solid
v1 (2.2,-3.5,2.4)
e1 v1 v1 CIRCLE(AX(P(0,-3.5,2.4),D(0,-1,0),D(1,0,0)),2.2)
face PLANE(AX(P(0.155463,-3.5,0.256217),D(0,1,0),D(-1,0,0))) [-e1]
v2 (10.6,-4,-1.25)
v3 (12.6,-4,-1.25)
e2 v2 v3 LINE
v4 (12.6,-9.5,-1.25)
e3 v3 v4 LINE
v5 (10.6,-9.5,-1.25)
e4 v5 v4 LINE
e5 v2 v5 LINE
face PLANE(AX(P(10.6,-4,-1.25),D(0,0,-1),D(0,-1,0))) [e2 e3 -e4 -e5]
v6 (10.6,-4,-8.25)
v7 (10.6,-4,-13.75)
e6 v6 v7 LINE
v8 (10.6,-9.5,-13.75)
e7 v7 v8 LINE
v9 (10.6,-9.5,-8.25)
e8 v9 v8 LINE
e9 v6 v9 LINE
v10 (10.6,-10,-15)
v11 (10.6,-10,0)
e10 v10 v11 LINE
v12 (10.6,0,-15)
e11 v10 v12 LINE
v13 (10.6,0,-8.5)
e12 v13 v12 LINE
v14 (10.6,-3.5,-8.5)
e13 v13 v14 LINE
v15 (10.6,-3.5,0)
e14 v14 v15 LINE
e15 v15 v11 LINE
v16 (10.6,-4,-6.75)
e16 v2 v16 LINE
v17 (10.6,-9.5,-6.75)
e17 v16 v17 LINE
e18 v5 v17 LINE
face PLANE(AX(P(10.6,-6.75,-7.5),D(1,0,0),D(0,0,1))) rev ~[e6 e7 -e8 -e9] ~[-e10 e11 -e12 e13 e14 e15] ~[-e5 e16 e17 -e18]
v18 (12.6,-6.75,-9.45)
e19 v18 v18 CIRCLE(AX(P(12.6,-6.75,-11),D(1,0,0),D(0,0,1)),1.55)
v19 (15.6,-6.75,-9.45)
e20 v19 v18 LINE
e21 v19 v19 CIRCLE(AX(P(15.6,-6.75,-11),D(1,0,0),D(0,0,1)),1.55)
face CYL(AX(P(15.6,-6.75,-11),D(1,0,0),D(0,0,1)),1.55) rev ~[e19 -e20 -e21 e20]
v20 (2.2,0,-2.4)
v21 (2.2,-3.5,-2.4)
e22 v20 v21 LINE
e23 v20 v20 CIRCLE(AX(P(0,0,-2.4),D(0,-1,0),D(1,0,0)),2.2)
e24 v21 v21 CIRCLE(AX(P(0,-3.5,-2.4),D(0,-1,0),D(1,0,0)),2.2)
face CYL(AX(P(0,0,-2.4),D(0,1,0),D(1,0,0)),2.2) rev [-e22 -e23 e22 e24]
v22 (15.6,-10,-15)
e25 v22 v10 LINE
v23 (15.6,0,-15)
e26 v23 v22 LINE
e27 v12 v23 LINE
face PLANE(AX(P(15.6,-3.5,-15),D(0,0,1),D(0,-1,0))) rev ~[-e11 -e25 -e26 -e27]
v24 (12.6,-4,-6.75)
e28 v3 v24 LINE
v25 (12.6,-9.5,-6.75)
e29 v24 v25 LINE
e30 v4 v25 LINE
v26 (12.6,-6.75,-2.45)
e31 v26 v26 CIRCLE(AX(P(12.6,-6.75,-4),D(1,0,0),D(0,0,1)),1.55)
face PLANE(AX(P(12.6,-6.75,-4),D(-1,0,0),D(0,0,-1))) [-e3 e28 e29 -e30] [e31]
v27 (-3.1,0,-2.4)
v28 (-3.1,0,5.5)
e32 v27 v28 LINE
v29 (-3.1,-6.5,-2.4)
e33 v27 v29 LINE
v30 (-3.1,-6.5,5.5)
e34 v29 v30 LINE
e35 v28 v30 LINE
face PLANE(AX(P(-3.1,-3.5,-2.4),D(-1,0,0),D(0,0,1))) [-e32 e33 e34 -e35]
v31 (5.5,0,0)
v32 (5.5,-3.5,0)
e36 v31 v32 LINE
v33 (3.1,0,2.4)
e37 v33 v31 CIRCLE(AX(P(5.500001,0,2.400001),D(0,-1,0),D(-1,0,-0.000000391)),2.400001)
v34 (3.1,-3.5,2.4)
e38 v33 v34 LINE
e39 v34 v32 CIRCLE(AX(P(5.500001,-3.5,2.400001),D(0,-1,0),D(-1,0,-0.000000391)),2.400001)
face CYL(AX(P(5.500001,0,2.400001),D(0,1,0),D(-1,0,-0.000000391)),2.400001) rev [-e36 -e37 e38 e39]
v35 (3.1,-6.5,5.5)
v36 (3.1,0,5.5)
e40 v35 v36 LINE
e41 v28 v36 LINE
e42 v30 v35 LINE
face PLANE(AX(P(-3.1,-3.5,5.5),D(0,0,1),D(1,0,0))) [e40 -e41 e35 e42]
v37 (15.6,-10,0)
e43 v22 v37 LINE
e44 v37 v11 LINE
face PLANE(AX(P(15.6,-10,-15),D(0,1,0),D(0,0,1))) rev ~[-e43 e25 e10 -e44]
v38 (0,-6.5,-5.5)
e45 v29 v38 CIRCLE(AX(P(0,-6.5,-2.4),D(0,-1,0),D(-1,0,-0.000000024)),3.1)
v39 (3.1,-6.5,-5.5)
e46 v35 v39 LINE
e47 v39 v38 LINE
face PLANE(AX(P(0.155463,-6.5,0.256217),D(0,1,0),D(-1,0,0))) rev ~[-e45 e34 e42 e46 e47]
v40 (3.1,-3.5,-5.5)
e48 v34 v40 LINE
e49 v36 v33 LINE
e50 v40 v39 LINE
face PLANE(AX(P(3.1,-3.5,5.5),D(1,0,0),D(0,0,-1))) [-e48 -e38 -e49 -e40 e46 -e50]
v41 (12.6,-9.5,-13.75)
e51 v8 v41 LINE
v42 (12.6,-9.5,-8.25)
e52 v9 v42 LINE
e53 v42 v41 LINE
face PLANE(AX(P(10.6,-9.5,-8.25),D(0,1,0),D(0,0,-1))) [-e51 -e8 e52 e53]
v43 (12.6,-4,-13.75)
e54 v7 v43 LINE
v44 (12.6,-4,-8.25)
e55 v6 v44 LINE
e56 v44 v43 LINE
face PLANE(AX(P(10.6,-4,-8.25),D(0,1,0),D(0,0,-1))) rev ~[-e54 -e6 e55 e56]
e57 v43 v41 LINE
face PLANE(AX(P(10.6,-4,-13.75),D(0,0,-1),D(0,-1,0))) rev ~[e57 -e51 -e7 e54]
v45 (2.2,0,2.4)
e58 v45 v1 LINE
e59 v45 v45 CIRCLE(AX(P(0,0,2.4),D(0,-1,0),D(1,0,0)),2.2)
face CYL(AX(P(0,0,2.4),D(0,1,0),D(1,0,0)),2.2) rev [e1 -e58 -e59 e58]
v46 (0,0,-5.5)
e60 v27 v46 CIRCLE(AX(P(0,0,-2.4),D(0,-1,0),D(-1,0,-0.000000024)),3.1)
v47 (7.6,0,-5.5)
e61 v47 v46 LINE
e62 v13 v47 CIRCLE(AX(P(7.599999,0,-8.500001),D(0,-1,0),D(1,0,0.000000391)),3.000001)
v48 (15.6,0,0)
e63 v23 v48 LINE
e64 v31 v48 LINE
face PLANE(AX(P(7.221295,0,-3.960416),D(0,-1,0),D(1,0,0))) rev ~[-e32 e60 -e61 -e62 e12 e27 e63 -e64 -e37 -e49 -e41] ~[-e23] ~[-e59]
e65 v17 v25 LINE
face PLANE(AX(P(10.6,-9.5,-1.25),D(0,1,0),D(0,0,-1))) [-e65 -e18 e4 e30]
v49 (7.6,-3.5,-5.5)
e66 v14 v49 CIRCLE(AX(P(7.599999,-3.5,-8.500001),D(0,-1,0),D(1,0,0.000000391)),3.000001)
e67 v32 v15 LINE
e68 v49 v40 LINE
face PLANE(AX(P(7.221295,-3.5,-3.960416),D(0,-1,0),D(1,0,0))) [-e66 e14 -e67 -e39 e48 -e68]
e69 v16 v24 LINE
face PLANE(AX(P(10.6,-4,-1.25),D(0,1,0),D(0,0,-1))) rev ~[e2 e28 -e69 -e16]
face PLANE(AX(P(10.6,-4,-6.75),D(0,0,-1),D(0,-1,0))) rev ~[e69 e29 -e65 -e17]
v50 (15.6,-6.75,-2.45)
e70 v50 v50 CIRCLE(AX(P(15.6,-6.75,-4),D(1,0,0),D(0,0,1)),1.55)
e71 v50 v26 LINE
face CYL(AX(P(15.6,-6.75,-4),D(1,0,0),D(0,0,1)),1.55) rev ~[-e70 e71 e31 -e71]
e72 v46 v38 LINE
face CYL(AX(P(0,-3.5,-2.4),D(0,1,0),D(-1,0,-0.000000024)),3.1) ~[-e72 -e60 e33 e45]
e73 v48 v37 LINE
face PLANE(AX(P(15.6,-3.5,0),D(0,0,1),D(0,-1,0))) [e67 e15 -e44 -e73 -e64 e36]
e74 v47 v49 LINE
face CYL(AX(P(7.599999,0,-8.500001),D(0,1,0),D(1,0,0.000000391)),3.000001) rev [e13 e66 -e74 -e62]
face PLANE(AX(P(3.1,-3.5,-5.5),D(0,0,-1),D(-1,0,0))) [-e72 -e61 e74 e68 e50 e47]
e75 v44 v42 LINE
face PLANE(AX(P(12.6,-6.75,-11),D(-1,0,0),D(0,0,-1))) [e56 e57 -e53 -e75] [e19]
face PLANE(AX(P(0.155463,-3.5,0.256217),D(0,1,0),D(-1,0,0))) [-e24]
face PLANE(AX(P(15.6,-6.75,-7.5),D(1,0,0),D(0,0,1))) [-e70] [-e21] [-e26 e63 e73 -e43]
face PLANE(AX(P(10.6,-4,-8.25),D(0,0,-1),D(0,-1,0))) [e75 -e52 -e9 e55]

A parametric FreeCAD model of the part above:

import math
import FreeCAD as App
import Part
import Sketcher
from FreeCAD import Vector

doc = App.newDocument("Part")
body = doc.addObject("PartDesign::Body", "Body")

# Sketch on XZ plane
sketch1 = body.newObject("Sketcher::SketchObject", "Sketch")
sketch1.AttachmentSupport = (doc.getObject("XZ_Plane"), [""])
sketch1.MapMode = "FlatFace"
sketch1.addGeometry([
    Part.LineSegment(Vector(10.6, -8.5, 0), Vector(10.6, -15, 0)),  # 0
    Part.LineSegment(Vector(10.6, -15, 0), Vector(15.6, -15, 0)),  # 1
    Part.LineSegment(Vector(15.6, -15, 0), Vector(15.6, 0, 0)),  # 2
    Part.LineSegment(Vector(15.6, 0, 0), Vector(5.5, 0, 0)),  # 3
    Part.ArcOfCircle(Part.Circle(Vector(5.500001, 2.400001, 0), Vector(0, 0, 1), 2.400001), math.radians(-179.999978), math.radians(-90.000022)),  # 4
    Part.LineSegment(Vector(3.1, 2.4, 0), Vector(3.1, 5.5, 0)),  # 5
    Part.LineSegment(Vector(3.1, 5.5, 0), Vector(-3.1, 5.5, 0)),  # 6
    Part.LineSegment(Vector(-3.1, 5.5, 0), Vector(-3.1, -2.4, 0)),  # 7
    Part.ArcOfCircle(Part.Circle(Vector(0, -2.4, 0), Vector(0, 0, 1), 3.1), math.radians(-179.999999), math.radians(-90.000001)),  # 8
    Part.LineSegment(Vector(0, -5.5, 0), Vector(7.6, -5.5, 0)),  # 9
    Part.ArcOfCircle(Part.Circle(Vector(7.599999, -8.500001, 0), Vector(0, 0, 1), 3.000001), math.radians(0.000022), math.radians(89.999978)),  # 10
    Part.Circle(Vector(0, -2.4, 0), Vector(0, 0, 1), 2.2),  # 11
    Part.Circle(Vector(0, 2.4, 0), Vector(0, 0, 1), 2.2),  # 12
], False)
sketch1.addConstraint([
    Sketcher.Constraint("Coincident", 0, 2, 1, 1),
    Sketcher.Constraint("Coincident", 1, 2, 2, 1),
    Sketcher.Constraint("Coincident", 2, 2, 3, 1),
    Sketcher.Constraint("Tangent", 3, 2, 4, 2),
    Sketcher.Constraint("Tangent", 4, 1, 5, 1),
    Sketcher.Constraint("Coincident", 5, 2, 6, 1),
    Sketcher.Constraint("Coincident", 6, 2, 7, 1),
    Sketcher.Constraint("Tangent", 7, 2, 8, 1),
    Sketcher.Constraint("Tangent", 8, 2, 9, 1),
    Sketcher.Constraint("Tangent", 9, 2, 10, 2),
    Sketcher.Constraint("Tangent", 10, 1, 0, 1),
    Sketcher.Constraint("Vertical", 0),
    Sketcher.Constraint("Horizontal", 1),
    Sketcher.Constraint("Vertical", 2),
    Sketcher.Constraint("Horizontal", 3),
    Sketcher.Constraint("Vertical", 5),
    Sketcher.Constraint("Horizontal", 6),
    Sketcher.Constraint("Vertical", 7),
    Sketcher.Constraint("Horizontal", 9),
    Sketcher.Constraint("Coincident", 11, 3, 8, 3),
    Sketcher.Constraint("Equal", 11, 12),
    Sketcher.Constraint("Symmetric", 8, 3, 12, 3, -1, 1),
    Sketcher.Constraint("Symmetric", 4, 1, 7, 2, -1, 1),
    Sketcher.Constraint("PointOnObject", 8, 3, -2),
    Sketcher.Constraint("PointOnObject", 2, 2, -1),
    Sketcher.Constraint("Radius", 10, 3.000001),
    Sketcher.Constraint("Diameter", 11, 4.4),
    Sketcher.Constraint("Radius", 4, 2.400001),
    Sketcher.Constraint("Radius", 8, 3.1),
    Sketcher.Constraint("DistanceX", 1, 1, 1, 2, 5.0),
    Sketcher.Constraint("DistanceY", 2, 1, 2, 2, 15.0),
    Sketcher.Constraint("DistanceX", 3, 2, 3, 1, 10.1),
    Sketcher.Constraint("DistanceY", 5, 1, 5, 2, 3.1),
])
pad1 = body.newObject("PartDesign::Pad", "Pad")
pad1.Profile = sketch1
pad1.Length = 3.5

# Sketch on YZ plane
sketch2 = body.newObject("Sketcher::SketchObject", "Sketch001")
sketch2.AttachmentSupport = (doc.getObject("YZ_Plane"), [""])
sketch2.MapMode = "FlatFace"
sketch2.AttachmentOffset = App.Placement(Vector(0, 0, 15.6), App.Rotation())
sketch2.addGeometry([
    Part.LineSegment(Vector(-10, -15, 0), Vector(-3.5, -15, 0)),  # 0
    Part.LineSegment(Vector(-3.5, -15, 0), Vector(-3.5, 0, 0)),  # 1
    Part.LineSegment(Vector(-3.5, 0, 0), Vector(-10, 0, 0)),  # 2
    Part.LineSegment(Vector(-10, 0, 0), Vector(-10, -15, 0)),  # 3
    Part.Circle(Vector(-6.75, -11, 0), Vector(0, 0, 1), 1.55),  # 4
    Part.Circle(Vector(-6.75, -4, 0), Vector(0, 0, 1), 1.55),  # 5
], False)
sketch2.addConstraint([
    Sketcher.Constraint("Coincident", 0, 2, 1, 1),
    Sketcher.Constraint("Coincident", 1, 2, 2, 1),
    Sketcher.Constraint("Coincident", 2, 2, 3, 1),
    Sketcher.Constraint("Coincident", 3, 2, 0, 1),
    Sketcher.Constraint("Horizontal", 0),
    Sketcher.Constraint("Vertical", 1),
    Sketcher.Constraint("Horizontal", 2),
    Sketcher.Constraint("Vertical", 3),
    Sketcher.Constraint("Equal", 4, 5),
    Sketcher.Constraint("PointOnObject", 1, 2, -1),
    Sketcher.Constraint("Vertical", 4, 3, 5, 3),
    Sketcher.Constraint("Diameter", 4, 3.1),
    Sketcher.Constraint("DistanceY", 1, 1, 1, 2, 15.0),
    Sketcher.Constraint("DistanceX", 0, 1, 0, 2, 6.5),
    Sketcher.Constraint("DistanceY", 4, 3, -1, 1, 11.0),
    Sketcher.Constraint("DistanceY", 5, 3, -1, 1, 4.0),
    Sketcher.Constraint("DistanceX", 2, 2, -1, 1, 10.0),
    Sketcher.Constraint("DistanceX", 4, 3, -1, 1, 6.75),
])
pad2 = body.newObject("PartDesign::Pad", "Pad001")
pad2.Profile = sketch2
pad2.Length = 5
pad2.Reversed = True

# Sketch on YZ plane
sketch3 = body.newObject("Sketcher::SketchObject", "Sketch002")
sketch3.AttachmentSupport = (doc.getObject("YZ_Plane"), [""])
sketch3.MapMode = "FlatFace"
sketch3.AttachmentOffset = App.Placement(Vector(0, 0, 10.6), App.Rotation())
sketch3.addGeometry([
    Part.LineSegment(Vector(-9.5, -1.25, 0), Vector(-4, -1.25, 0)),  # 0
    Part.LineSegment(Vector(-4, -1.25, 0), Vector(-4, -6.75, 0)),  # 1
    Part.LineSegment(Vector(-4, -6.75, 0), Vector(-9.5, -6.75, 0)),  # 2
    Part.LineSegment(Vector(-9.5, -6.75, 0), Vector(-9.5, -1.25, 0)),  # 3
    Part.LineSegment(Vector(-9.5, -8.25, 0), Vector(-4, -8.25, 0)),  # 4
    Part.LineSegment(Vector(-4, -8.25, 0), Vector(-4, -13.75, 0)),  # 5
    Part.LineSegment(Vector(-4, -13.75, 0), Vector(-9.5, -13.75, 0)),  # 6
    Part.LineSegment(Vector(-9.5, -13.75, 0), Vector(-9.5, -8.25, 0)),  # 7
], False)
sketch3.addConstraint([
    Sketcher.Constraint("Coincident", 0, 2, 1, 1),
    Sketcher.Constraint("Coincident", 1, 2, 2, 1),
    Sketcher.Constraint("Coincident", 2, 2, 3, 1),
    Sketcher.Constraint("Coincident", 3, 2, 0, 1),
    Sketcher.Constraint("Coincident", 4, 2, 5, 1),
    Sketcher.Constraint("Coincident", 5, 2, 6, 1),
    Sketcher.Constraint("Coincident", 6, 2, 7, 1),
    Sketcher.Constraint("Coincident", 7, 2, 4, 1),
    Sketcher.Constraint("Horizontal", 0),
    Sketcher.Constraint("Vertical", 1),
    Sketcher.Constraint("Horizontal", 2),
    Sketcher.Constraint("Vertical", 3),
    Sketcher.Constraint("Horizontal", 4),
    Sketcher.Constraint("Vertical", 5),
    Sketcher.Constraint("Horizontal", 6),
    Sketcher.Constraint("Vertical", 7),
    Sketcher.Constraint("Vertical", 1, 2, 4, 2),
    Sketcher.Constraint("Vertical", 3, 2, 6, 2),
    Sketcher.Constraint("Equal", 6, 1),
    Sketcher.Constraint("Equal", 3, 5),
    Sketcher.Constraint("DistanceX", 0, 1, 0, 2, 5.5),
    Sketcher.Constraint("DistanceX", 0, 2, -1, 1, 4.0),
    Sketcher.Constraint("DistanceY", 4, 2, 0, 2, 7.0),
    Sketcher.Constraint("DistanceY", 0, 2, -1, 1, 1.25),
])
pocket1 = body.newObject("PartDesign::Pocket", "Pocket")
pocket1.Profile = sketch3
pocket1.Length = 2
pocket1.Reversed = True

# Sketch on XZ plane
sketch4 = body.newObject("Sketcher::SketchObject", "Sketch003")
sketch4.AttachmentSupport = (doc.getObject("XZ_Plane"), [""])
sketch4.MapMode = "FlatFace"
sketch4.AttachmentOffset = App.Placement(Vector(0, 0, 3.5), App.Rotation())
sketch4.addGeometry([
    Part.LineSegment(Vector(3.1, 5.5, 0), Vector(-3.1, 5.5, 0)),  # 0
    Part.LineSegment(Vector(-3.1, 5.5, 0), Vector(-3.1, -2.4, 0)),  # 1
    Part.ArcOfCircle(Part.Circle(Vector(0, -2.4, 0), Vector(0, 0, 1), 3.1), math.radians(-179.999999), math.radians(-90.000001)),  # 2
    Part.LineSegment(Vector(0, -5.5, 0), Vector(3.1, -5.5, 0)),  # 3
    Part.LineSegment(Vector(3.1, -5.5, 0), Vector(3.1, 5.5, 0)),  # 4
], False)
sketch4.addConstraint([
    Sketcher.Constraint("Coincident", 0, 2, 1, 1),
    Sketcher.Constraint("Tangent", 1, 2, 2, 1),
    Sketcher.Constraint("Tangent", 2, 2, 3, 1),
    Sketcher.Constraint("Coincident", 3, 2, 4, 1),
    Sketcher.Constraint("Coincident", 4, 2, 0, 1),
    Sketcher.Constraint("Horizontal", 0),
    Sketcher.Constraint("Vertical", 1),
    Sketcher.Constraint("Horizontal", 3),
    Sketcher.Constraint("Vertical", 4),
    Sketcher.Constraint("Symmetric", 0, 2, 3, 2, -1, 1),
    Sketcher.Constraint("PointOnObject", 2, 3, -2),
    Sketcher.Constraint("Radius", 2, 3.1),
    Sketcher.Constraint("DistanceY", 4, 1, 4, 2, 11.0),
])
pad3 = body.newObject("PartDesign::Pad", "Pad002")
pad3.Profile = sketch4
pad3.Length = 3

doc.recompute()
